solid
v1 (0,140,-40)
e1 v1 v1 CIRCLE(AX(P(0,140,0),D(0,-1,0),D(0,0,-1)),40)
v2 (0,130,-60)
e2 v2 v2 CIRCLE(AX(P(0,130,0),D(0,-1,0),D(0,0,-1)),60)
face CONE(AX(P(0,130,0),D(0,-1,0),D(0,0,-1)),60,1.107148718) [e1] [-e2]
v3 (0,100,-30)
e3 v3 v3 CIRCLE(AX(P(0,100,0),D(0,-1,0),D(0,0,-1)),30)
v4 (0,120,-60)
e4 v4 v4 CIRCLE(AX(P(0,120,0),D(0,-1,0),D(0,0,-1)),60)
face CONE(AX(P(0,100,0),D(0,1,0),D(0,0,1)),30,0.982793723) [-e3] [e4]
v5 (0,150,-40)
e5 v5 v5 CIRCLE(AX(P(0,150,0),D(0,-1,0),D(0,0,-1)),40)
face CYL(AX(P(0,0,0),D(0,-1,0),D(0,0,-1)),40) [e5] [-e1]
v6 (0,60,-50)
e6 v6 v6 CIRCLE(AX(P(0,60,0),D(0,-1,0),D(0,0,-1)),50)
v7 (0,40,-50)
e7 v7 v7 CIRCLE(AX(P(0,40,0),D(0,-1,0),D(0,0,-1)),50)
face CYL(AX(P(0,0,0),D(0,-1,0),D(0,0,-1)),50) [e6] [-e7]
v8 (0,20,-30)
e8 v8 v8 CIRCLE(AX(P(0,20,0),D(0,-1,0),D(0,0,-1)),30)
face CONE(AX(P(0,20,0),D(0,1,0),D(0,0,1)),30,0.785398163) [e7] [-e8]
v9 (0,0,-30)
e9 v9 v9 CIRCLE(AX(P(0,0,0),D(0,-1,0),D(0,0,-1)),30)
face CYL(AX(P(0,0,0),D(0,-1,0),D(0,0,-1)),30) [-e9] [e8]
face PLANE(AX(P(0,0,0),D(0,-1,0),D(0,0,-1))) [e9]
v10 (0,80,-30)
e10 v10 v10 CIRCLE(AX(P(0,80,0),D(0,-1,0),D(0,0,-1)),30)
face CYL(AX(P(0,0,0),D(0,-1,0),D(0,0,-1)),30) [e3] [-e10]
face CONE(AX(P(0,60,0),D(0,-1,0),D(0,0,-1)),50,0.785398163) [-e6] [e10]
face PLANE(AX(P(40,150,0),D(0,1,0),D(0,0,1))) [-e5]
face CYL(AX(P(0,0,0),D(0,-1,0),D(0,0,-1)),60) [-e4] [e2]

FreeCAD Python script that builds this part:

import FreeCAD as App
import Part
import Sketcher
from FreeCAD import Vector
Q = App.Units.Quantity


def add_polygon(sketch, points):
    """Adds a closed chain of lines whose ends are joined by coincident constraints."""
    first, n = sketch.GeometryCount, len(points)
    for a, b in zip(points, points[1:] + points[:1]):
        sketch.addGeometry(Part.LineSegment(App.Vector(*a, 0), App.Vector(*b, 0)), False)
    for i in range(n):
        sketch.addConstraint(Sketcher.Constraint("Coincident", first + i, 2, first + (i + 1) % n, 1))

doc = App.newDocument("Part")
body = doc.addObject("PartDesign::Body", "Body")

sketch1 = body.newObject("Sketcher::SketchObject", "Sketch")
sketch1.AttachmentSupport = (doc.getObject("XY_Plane"), [""])
sketch1.MapMode = "FlatFace"
add_polygon(sketch1, [(30, 0), (30, 20), (50, 40), (50, 60), (30, 80), (30, 100), (60, 120), (60, 130), (40, 140), (40, 150), (0, 150), (0, 0)])
sketch1.addConstraint([
    Sketcher.Constraint("Vertical", 0),
    Sketcher.Constraint("Vertical", 2),
    Sketcher.Constraint("Vertical", 4),
    Sketcher.Constraint("Vertical", 6),
    Sketcher.Constraint("Vertical", 8),
    Sketcher.Constraint("Horizontal", 9),
    Sketcher.Constraint("Vertical", 10),
    Sketcher.Constraint("Horizontal", 11),
    Sketcher.Constraint("Coincident", 10, 2, -1, 1),
    Sketcher.Constraint("Perpendicular", 1, 3),
    Sketcher.Constraint("Vertical", 0, 2, 3, 2),
    Sketcher.Constraint("Equal", 0, 2),
    Sketcher.Constraint("Equal", 2, 4),
    Sketcher.Constraint("Equal", 6, 8),
    Sketcher.Constraint("Equal", 1, 3),
    Sketcher.Constraint("DistanceX", 9, 2, 9, 1, Q("40 mm")),
    Sketcher.Constraint("DistanceX", 11, 1, 11, 2, Q("30 mm")),
    Sketcher.Constraint("DistanceY", 0, 1, 0, 2, Q("20 mm")),
    Sketcher.Constraint("DistanceY", 6, 1, 6, 2, Q("10 mm")),
    Sketcher.Constraint("DistanceY", 10, 2, 10, 1, Q("150 mm")),
    Sketcher.Constraint("DistanceX", -1, 1, 1, 2, Q("50 mm")),
    Sketcher.Constraint("DistanceX", -1, 1, 5, 2, Q("60 mm")),
    Sketcher.Constraint("DistanceY", -1, 1, 5, 2, Q("120 mm")),
])
revolution = body.newObject("PartDesign::Revolution", "Revolution")
revolution.Profile = sketch1
revolution.ReferenceAxis = (sketch1, ["V_Axis"])
revolution.Angle = 360

doc.recompute()
